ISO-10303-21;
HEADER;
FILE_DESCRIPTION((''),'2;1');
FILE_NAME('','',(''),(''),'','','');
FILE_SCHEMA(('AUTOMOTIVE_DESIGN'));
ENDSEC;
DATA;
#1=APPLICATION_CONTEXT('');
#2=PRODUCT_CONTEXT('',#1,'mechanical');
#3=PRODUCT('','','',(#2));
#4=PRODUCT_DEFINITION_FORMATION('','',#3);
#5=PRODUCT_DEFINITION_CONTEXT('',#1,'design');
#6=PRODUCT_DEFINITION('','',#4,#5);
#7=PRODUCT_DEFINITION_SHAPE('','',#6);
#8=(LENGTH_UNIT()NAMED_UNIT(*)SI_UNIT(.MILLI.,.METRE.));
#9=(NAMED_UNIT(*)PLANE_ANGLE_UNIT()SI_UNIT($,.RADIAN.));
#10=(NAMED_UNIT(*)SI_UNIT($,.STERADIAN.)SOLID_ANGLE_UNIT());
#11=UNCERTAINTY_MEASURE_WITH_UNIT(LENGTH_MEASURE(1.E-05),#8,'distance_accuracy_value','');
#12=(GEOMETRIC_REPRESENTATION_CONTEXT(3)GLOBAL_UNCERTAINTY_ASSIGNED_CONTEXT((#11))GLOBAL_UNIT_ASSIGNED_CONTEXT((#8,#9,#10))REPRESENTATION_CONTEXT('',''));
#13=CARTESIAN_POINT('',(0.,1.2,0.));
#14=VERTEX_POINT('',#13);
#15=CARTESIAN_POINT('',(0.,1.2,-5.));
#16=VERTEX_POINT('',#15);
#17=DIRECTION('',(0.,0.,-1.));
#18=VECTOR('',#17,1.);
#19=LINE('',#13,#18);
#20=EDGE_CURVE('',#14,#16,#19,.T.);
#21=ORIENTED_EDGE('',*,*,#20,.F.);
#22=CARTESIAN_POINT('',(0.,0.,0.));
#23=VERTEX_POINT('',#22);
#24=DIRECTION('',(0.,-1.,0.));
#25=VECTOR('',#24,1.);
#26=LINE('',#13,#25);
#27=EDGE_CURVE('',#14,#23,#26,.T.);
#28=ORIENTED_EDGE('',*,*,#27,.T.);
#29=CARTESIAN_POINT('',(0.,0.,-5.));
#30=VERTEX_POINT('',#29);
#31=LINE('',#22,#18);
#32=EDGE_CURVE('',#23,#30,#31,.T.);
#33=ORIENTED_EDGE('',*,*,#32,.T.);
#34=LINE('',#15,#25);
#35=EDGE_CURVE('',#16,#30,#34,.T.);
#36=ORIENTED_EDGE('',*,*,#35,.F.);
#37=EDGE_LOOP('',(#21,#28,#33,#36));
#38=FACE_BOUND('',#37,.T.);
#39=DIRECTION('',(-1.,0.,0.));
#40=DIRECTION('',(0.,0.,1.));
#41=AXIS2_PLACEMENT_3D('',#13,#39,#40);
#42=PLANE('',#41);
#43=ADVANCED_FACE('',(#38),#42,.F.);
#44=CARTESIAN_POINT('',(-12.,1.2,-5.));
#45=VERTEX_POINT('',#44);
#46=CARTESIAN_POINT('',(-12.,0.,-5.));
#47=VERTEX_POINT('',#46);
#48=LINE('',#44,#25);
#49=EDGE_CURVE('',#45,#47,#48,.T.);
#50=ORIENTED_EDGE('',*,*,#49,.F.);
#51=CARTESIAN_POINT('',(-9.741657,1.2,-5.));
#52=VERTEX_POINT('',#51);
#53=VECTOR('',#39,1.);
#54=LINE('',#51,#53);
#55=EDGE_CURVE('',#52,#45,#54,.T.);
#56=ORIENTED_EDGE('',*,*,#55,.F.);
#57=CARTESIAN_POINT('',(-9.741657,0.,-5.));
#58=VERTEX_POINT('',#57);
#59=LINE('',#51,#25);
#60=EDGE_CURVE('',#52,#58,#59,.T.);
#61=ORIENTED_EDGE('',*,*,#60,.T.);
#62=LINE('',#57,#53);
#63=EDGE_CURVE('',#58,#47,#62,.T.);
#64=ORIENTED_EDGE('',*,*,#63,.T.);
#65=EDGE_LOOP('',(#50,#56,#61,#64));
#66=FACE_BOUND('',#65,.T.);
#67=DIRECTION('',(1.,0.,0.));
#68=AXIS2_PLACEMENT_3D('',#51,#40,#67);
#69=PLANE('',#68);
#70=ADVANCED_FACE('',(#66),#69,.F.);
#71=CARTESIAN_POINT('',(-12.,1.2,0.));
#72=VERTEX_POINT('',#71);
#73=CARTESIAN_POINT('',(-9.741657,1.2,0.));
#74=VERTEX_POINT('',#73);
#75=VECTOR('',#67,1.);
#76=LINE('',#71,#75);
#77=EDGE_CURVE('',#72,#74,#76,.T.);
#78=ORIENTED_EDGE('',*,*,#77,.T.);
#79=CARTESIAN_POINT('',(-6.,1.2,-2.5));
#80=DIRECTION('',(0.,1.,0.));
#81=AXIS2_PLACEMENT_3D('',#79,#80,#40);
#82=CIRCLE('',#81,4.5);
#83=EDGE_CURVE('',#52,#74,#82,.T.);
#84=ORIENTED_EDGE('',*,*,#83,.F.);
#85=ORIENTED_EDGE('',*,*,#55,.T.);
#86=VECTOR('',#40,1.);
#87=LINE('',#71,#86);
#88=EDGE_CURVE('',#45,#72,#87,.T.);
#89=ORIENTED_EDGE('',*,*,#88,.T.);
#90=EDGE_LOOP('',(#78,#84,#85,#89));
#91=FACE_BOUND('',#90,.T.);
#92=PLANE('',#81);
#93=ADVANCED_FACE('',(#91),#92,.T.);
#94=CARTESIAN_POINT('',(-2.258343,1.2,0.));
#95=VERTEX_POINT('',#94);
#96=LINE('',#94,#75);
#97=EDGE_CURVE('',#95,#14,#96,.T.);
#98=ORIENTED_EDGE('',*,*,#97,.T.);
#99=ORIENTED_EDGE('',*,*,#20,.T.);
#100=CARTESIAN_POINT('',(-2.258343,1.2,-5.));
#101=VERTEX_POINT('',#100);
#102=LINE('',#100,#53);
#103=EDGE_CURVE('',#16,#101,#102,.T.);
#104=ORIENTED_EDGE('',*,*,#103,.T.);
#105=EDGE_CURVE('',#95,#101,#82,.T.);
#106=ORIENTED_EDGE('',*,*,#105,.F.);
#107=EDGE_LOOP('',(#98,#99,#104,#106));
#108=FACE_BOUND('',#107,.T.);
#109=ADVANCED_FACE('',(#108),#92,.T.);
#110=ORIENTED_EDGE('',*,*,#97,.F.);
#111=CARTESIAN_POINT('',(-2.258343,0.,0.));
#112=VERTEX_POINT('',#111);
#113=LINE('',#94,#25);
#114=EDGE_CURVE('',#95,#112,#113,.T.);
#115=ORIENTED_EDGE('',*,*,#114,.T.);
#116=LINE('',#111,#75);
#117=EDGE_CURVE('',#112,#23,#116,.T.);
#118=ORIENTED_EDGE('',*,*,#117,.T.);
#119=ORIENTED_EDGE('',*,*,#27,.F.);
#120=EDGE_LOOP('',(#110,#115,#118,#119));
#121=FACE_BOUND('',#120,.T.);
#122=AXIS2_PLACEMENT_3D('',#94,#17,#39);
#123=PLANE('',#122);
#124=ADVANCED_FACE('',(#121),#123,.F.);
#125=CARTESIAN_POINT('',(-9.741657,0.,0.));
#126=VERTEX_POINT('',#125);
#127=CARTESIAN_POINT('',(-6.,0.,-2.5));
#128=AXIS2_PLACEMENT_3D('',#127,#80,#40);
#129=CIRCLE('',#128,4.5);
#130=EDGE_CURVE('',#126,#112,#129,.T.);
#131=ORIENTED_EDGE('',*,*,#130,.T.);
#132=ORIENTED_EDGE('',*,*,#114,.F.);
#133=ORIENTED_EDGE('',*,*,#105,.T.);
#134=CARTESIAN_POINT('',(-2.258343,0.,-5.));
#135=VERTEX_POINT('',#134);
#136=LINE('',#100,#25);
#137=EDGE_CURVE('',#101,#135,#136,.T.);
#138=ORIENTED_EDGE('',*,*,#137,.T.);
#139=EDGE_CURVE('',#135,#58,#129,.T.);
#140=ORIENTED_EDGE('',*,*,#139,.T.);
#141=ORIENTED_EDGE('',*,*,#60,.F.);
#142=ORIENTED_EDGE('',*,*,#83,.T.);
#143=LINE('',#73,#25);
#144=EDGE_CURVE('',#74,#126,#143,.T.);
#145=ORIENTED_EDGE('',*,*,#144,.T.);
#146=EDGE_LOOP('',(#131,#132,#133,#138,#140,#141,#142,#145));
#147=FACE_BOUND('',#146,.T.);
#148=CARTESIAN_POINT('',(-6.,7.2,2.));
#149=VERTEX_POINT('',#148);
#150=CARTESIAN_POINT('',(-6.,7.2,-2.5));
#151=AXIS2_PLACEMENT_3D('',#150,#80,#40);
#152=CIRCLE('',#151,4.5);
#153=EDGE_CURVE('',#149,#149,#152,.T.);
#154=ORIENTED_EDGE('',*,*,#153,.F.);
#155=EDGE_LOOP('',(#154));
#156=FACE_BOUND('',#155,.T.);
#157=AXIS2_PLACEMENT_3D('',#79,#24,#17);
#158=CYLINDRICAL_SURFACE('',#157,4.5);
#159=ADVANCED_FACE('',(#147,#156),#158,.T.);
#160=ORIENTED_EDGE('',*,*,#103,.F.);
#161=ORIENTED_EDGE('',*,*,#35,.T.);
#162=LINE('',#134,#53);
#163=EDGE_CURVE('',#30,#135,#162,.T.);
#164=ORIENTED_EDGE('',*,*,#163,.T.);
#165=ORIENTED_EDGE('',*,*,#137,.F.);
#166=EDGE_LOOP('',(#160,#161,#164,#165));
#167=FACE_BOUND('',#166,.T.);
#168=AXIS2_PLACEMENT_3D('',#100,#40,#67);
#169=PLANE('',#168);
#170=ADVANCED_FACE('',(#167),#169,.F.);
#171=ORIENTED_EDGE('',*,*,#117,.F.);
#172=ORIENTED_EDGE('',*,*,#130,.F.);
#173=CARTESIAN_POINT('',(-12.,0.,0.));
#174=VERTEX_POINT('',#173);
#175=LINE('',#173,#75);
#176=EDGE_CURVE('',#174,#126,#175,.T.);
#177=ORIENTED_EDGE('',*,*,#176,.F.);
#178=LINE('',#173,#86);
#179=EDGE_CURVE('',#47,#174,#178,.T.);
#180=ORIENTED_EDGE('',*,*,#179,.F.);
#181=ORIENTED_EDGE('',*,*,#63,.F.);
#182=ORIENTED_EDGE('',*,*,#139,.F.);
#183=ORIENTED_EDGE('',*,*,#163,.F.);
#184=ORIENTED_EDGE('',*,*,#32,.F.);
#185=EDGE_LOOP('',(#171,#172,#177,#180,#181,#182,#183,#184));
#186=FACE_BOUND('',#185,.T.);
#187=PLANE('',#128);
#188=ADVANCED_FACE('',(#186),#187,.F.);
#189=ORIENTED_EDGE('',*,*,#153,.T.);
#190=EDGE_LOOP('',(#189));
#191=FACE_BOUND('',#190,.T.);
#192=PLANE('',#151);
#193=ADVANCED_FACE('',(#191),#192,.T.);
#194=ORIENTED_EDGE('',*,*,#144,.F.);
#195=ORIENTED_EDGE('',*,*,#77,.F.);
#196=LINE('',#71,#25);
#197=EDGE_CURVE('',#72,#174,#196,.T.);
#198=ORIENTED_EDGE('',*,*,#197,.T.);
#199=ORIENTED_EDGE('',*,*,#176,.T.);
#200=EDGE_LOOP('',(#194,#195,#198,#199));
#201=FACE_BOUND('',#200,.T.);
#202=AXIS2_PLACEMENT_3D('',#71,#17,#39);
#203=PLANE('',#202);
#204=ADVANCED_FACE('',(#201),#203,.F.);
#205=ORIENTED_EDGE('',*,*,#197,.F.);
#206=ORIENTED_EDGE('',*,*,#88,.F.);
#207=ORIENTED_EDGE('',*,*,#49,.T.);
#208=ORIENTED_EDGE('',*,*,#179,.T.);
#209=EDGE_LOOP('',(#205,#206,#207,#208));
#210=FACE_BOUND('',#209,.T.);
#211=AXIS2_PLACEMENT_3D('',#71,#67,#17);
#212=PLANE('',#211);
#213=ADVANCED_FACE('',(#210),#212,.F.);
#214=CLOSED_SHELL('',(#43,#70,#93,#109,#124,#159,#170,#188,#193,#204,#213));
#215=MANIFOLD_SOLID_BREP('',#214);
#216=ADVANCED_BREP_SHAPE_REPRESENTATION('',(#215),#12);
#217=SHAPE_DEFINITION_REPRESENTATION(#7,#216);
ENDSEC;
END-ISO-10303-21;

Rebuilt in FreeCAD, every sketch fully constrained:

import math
import FreeCAD as App
import Part
import Sketcher

V = App.Vector
Q = App.Units.Quantity

doc = App.newDocument("Part")
body = doc.addObject("PartDesign::Body", "Body")

# Sketch on XZ plane
sketch1 = doc.addObject("Sketcher::SketchObject", "Sketch")
body.addObject(sketch1)
sketch1.AttachmentSupport = (doc.XZ_Plane, [""])
sketch1.MapMode = "FlatFace"
sketch1.addGeometry([
    Part.LineSegment(V(-12, 0, 0), V(-9.7, 0, 0)),  # 0
    Part.ArcOfCircle(Part.Circle(V(-6, -2.5, 0), V(0, 0, 1), 4.5), math.radians(34), math.radians(146)),  # 1
    Part.LineSegment(V(-2.3, 0, 0), V(0, 0, 0)),  # 2
    Part.LineSegment(V(0, 0, 0), V(0, -5, 0)),  # 3
    Part.LineSegment(V(0, -5, 0), V(-2.3, -5, 0)),  # 4
    Part.ArcOfCircle(Part.Circle(V(-6, -2.5, 0), V(0, 0, 1), 4.5), math.radians(-146), math.radians(-34)),  # 5
    Part.LineSegment(V(-9.7, -5, 0), V(-12, -5, 0)),  # 6
    Part.LineSegment(V(-12, -5, 0), V(-12, 0, 0)),  # 7
], False)
sketch1.addConstraint([
    Sketcher.Constraint("Coincident", 0, 2, 1, 2),
    Sketcher.Constraint("Coincident", 1, 1, 2, 1),
    Sketcher.Constraint("Coincident", 2, 2, 3, 1),
    Sketcher.Constraint("Coincident", 3, 2, 4, 1),
    Sketcher.Constraint("Coincident", 4, 2, 5, 2),
    Sketcher.Constraint("Coincident", 5, 1, 6, 1),
    Sketcher.Constraint("Coincident", 6, 2, 7, 1),
    Sketcher.Constraint("Coincident", 7, 2, 0, 1),
    Sketcher.Constraint("Horizontal", 0),
    Sketcher.Constraint("Horizontal", 2),
    Sketcher.Constraint("Vertical", 3),
    Sketcher.Constraint("Horizontal", 4),
    Sketcher.Constraint("Horizontal", 6),
    Sketcher.Constraint("Vertical", 7),
    Sketcher.Constraint("Coincident", 2, 2, -1, 1),
    Sketcher.Constraint("Coincident", 5, 3, 1, 3),
    Sketcher.Constraint("Equal", 1, 5),
    Sketcher.Constraint("PointOnObject", 0, 2, -1),
    Sketcher.Constraint("Horizontal", 4, 2, 5, 1),
    Sketcher.Constraint("Vertical", 1, 1, 4, 2),
    Sketcher.Constraint("Equal", 0, 2),
    Sketcher.Constraint("Radius", 1, Q("4.5 mm")),
    Sketcher.Constraint("DistanceY", 3, 2, 3, 1, Q("5 mm")),
    Sketcher.Constraint("DistanceX", 1, 3, -1, 1, Q("6 mm")),
])
pad1 = doc.addObject("PartDesign::Pad", "Pad")
body.addObject(pad1)
pad1.Profile = sketch1
pad1.Length = 1.2
pad1.Reversed = True

# Sketch on XZ plane
sketch2 = doc.addObject("Sketcher::SketchObject", "Sketch001")
body.addObject(sketch2)
sketch2.AttachmentSupport = (doc.XZ_Plane, [""])
sketch2.MapMode = "FlatFace"
sketch2.AttachmentOffset = App.Placement(V(0, 0, -1.2), App.Rotation())
sketch2.addGeometry(Part.Circle(V(-6, -2.5, 0), V(0, 0, 1), 4.5), False)
sketch2.addConstraint([
    Sketcher.Constraint("Diameter", 0, Q("9 mm")),
    Sketcher.Constraint("DistanceX", 0, 3, -1, 1, Q("6 mm")),
    Sketcher.Constraint("DistanceY", 0, 3, -1, 1, Q("2.5 mm")),
])
pad2 = doc.addObject("PartDesign::Pad", "Pad001")
body.addObject(pad2)
pad2.Profile = sketch2
pad2.Length = 6
pad2.Reversed = True

doc.recompute()
